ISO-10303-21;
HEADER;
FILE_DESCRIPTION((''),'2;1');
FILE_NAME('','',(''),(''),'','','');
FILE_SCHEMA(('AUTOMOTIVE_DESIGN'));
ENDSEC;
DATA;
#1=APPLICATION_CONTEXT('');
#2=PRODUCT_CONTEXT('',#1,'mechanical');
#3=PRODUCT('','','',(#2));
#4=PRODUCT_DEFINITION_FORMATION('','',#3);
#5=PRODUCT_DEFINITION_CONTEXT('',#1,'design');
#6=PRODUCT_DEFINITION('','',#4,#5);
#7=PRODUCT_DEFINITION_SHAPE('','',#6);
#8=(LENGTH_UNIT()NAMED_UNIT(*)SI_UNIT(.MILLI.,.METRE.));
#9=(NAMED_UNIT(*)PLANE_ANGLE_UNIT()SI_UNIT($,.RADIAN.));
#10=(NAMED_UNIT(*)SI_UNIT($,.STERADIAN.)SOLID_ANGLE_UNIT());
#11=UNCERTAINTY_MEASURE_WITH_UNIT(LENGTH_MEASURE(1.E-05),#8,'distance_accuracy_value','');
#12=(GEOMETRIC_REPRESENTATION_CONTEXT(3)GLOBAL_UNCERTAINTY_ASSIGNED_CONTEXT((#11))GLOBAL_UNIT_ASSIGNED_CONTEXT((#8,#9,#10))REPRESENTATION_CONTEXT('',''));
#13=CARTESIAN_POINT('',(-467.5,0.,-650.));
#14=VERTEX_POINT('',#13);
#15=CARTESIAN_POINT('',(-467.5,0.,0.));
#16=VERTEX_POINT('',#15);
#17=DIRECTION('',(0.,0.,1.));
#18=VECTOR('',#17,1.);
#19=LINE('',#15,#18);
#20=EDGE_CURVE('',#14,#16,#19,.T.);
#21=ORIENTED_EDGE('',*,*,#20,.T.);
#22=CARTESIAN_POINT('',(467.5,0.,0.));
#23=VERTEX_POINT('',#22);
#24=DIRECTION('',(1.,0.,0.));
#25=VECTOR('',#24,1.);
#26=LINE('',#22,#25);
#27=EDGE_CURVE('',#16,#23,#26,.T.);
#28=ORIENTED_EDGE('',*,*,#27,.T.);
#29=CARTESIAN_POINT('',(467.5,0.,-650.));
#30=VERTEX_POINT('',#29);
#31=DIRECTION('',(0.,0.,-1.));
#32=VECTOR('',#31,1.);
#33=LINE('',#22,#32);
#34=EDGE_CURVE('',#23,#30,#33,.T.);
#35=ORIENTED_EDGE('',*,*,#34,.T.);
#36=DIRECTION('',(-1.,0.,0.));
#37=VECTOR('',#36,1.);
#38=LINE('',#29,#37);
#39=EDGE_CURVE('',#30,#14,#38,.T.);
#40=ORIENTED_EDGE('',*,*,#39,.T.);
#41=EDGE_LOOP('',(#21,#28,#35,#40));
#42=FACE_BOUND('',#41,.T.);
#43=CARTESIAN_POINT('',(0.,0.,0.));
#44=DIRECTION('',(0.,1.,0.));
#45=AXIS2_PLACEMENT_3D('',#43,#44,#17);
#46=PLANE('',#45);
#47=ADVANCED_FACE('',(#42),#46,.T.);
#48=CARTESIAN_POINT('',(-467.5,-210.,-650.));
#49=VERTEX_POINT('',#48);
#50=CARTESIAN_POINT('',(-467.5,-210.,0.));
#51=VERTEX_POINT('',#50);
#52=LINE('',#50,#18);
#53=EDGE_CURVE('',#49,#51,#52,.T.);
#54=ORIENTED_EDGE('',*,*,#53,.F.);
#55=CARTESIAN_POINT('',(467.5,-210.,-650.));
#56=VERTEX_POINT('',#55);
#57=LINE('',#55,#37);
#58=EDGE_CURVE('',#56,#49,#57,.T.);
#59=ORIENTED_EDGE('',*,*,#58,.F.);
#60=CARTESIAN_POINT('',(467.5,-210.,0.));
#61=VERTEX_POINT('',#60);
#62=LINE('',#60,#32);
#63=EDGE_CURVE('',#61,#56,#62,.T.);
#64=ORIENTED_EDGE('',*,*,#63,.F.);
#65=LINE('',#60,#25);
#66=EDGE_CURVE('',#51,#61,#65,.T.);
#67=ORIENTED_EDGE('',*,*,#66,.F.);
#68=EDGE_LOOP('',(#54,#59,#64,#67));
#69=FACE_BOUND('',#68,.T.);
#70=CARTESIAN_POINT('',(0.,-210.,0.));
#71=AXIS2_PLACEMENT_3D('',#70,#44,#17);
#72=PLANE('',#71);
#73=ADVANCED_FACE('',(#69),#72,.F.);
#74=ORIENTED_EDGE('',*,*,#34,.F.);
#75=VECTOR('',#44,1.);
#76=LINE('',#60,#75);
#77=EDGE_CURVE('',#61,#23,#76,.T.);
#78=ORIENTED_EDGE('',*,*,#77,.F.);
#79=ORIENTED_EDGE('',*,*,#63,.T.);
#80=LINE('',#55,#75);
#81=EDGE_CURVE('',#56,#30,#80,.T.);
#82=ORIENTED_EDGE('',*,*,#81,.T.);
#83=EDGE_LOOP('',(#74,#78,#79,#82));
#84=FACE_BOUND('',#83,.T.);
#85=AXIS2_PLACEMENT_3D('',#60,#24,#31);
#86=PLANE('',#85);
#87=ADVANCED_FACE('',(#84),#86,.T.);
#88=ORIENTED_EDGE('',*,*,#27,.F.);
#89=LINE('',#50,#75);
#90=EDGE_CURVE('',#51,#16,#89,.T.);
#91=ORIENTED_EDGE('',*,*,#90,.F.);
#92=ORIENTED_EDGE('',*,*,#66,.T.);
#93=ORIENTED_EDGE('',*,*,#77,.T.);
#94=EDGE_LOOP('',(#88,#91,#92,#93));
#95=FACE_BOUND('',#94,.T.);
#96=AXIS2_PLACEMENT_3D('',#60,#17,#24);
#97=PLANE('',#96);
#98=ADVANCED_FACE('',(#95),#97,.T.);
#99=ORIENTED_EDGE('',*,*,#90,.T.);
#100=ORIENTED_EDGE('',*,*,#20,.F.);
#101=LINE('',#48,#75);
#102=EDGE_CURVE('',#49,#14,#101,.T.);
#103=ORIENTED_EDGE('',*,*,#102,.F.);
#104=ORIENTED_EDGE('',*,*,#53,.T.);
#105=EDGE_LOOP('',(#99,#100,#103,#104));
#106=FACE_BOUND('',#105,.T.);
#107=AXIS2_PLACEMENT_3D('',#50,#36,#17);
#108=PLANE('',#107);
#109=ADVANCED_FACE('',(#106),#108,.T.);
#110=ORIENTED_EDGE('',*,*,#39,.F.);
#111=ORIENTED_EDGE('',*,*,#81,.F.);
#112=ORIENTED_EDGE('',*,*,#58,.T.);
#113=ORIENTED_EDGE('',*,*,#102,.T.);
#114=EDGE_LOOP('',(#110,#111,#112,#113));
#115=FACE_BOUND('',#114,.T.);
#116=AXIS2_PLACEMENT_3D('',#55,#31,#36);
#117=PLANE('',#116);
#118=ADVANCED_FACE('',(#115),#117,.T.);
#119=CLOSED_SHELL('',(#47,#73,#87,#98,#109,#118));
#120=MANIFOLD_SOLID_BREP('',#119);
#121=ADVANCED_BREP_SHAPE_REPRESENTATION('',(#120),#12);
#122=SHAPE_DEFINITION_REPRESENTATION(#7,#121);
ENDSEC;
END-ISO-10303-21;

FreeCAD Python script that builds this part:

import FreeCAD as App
import Part
import Sketcher
Q = App.Units.Quantity

doc = App.newDocument("Part")
params = doc.addObject("Spreadsheet::Sheet", "Params")
for row, (alias, value) in enumerate([
    ("sketch1_width", "935 mm"),
    ("sketch1_height", "650 mm"),
    ("pad1_length", "210 mm"),
], start=1):
    params.set(f"A{row}", alias)
    params.set(f"B{row}", "=" + value)
    params.setAlias(f"B{row}", alias)

body = doc.addObject("PartDesign::Body", "Body")

# Sketch on XZ plane
sketch1 = doc.addObject("Sketcher::SketchObject", "Sketch")
body.addObject(sketch1)
sketch1.AttachmentSupport = (doc.XZ_Plane, [""])
sketch1.MapMode = "FlatFace"
sketch1.addGeometry([
    Part.LineSegment(App.Vector(-468, -650, 0), App.Vector(-468, 0, 0)),
    Part.LineSegment(App.Vector(-468, 0, 0), App.Vector(468, 0, 0)),
    Part.LineSegment(App.Vector(468, 0, 0), App.Vector(468, -650, 0)),
    Part.LineSegment(App.Vector(468, -650, 0), App.Vector(-468, -650, 0)),
], False)
sketch1.addConstraint([
    Sketcher.Constraint("Coincident", 0, 2, 1, 1),
    Sketcher.Constraint("Coincident", 1, 2, 2, 1),
    Sketcher.Constraint("Coincident", 2, 2, 3, 1),
    Sketcher.Constraint("Coincident", 3, 2, 0, 1),
    Sketcher.Constraint("Vertical", 0),
    Sketcher.Constraint("Horizontal", 1),
    Sketcher.Constraint("Vertical", 2),
    Sketcher.Constraint("Horizontal", 3),
    Sketcher.Constraint("Symmetric", 0, 2, 1, 2, -1, 1),
    Sketcher.Constraint("DistanceX", 1, 1, 1, 2, Q("935 mm")),
    Sketcher.Constraint("DistanceY", 0, 1, 0, 2, Q("650 mm")),
])
sketch1.setExpression("Constraints[9]", "Params.sketch1_width")
sketch1.setExpression("Constraints[10]", "Params.sketch1_height")
pad1 = doc.addObject("PartDesign::Pad", "Pad")
body.addObject(pad1)
pad1.Profile = sketch1
pad1.setExpression("Length", "Params.pad1_length")

doc.recompute()
